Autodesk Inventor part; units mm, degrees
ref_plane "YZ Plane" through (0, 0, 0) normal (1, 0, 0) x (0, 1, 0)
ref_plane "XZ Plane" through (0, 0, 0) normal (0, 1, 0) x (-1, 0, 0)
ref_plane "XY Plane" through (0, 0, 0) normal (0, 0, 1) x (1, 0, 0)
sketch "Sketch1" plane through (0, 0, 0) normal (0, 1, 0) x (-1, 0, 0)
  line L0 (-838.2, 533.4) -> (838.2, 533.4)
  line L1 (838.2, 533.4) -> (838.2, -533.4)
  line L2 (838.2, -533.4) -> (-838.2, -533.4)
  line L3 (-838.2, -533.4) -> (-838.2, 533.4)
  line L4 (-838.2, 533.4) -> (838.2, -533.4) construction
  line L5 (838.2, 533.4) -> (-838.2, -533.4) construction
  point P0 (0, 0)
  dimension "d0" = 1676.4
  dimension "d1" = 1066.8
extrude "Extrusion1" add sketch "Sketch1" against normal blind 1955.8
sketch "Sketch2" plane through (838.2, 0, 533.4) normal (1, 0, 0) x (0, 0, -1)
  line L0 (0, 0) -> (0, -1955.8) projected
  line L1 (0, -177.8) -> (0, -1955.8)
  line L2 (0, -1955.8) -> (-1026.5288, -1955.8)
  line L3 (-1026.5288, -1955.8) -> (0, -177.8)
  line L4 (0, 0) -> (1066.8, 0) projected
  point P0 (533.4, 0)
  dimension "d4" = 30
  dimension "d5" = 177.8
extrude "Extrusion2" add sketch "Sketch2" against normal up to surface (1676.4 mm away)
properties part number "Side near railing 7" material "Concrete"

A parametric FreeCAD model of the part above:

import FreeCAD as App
import Part
import Sketcher
from FreeCAD import Vector
Q = App.Units.Quantity


def add_polygon(sketch, points):
    """Adds a closed chain of lines whose ends are joined by coincident constraints."""
    first, n = sketch.GeometryCount, len(points)
    for a, b in zip(points, points[1:] + points[:1]):
        sketch.addGeometry(Part.LineSegment(App.Vector(*a, 0), App.Vector(*b, 0)), False)
    for i in range(n):
        sketch.addConstraint(Sketcher.Constraint("Coincident", first + i, 2, first + (i + 1) % n, 1))

doc = App.newDocument("Part")
body = doc.addObject("PartDesign::Body", "Body")

# Sketch on XZ plane
sketch1 = body.newObject("Sketcher::SketchObject", "Sketch")
sketch1.AttachmentSupport = (doc.getObject("XZ_Plane"), [""])
sketch1.MapMode = "FlatFace"
add_polygon(sketch1, [(-838, 533), (838, 533), (838, -533), (-838, -533)])  # lines 0-3
sketch1.addConstraint([
    Sketcher.Constraint("Horizontal", 0),
    Sketcher.Constraint("Vertical", 1),
    Sketcher.Constraint("Horizontal", 2),
    Sketcher.Constraint("Vertical", 3),
    Sketcher.Constraint("Symmetric", 0, 2, 2, 2, -1, 1),
    Sketcher.Constraint("DistanceX", 0, 1, 0, 2, Q("66 in")),
    Sketcher.Constraint("DistanceY", 1, 2, 1, 1, Q("42 in")),
])
pad1 = body.newObject("PartDesign::Pad", "Pad")
pad1.Profile = sketch1
pad1.Length = Q("77 in")

# Sketch on YZ plane
sketch2 = body.newObject("Sketcher::SketchObject", "Sketch001")
sketch2.AttachmentSupport = (doc.getObject("YZ_Plane"), [""])
sketch2.MapMode = "FlatFace"
sketch2.AttachmentOffset = App.Placement(Vector(0, 0, 33 * 25.4), App.Rotation())
add_polygon(sketch2, [(-1956, 533), (-178, 533), (-1956, 1560)])  # lines 0-2
sketch2.addConstraint([
    Sketcher.Constraint("Horizontal", 0),
    Sketcher.Constraint("Vertical", 2),
    Sketcher.Constraint("DistanceX", 0, 2, -1, 1, Q("7 in")),
    Sketcher.Constraint("DistanceX", 0, 1, 0, 2, Q("70 in")),
    Sketcher.Constraint("DistanceY", -1, 1, 0, 2, Q("21 in")),
    Sketcher.Constraint("Angle", 1, Q("150 deg")),
])
pad2 = body.newObject("PartDesign::Pad", "Pad001")
pad2.Profile = sketch2
pad2.Length = Q("66 in")
pad2.Reversed = True

doc.recompute()
